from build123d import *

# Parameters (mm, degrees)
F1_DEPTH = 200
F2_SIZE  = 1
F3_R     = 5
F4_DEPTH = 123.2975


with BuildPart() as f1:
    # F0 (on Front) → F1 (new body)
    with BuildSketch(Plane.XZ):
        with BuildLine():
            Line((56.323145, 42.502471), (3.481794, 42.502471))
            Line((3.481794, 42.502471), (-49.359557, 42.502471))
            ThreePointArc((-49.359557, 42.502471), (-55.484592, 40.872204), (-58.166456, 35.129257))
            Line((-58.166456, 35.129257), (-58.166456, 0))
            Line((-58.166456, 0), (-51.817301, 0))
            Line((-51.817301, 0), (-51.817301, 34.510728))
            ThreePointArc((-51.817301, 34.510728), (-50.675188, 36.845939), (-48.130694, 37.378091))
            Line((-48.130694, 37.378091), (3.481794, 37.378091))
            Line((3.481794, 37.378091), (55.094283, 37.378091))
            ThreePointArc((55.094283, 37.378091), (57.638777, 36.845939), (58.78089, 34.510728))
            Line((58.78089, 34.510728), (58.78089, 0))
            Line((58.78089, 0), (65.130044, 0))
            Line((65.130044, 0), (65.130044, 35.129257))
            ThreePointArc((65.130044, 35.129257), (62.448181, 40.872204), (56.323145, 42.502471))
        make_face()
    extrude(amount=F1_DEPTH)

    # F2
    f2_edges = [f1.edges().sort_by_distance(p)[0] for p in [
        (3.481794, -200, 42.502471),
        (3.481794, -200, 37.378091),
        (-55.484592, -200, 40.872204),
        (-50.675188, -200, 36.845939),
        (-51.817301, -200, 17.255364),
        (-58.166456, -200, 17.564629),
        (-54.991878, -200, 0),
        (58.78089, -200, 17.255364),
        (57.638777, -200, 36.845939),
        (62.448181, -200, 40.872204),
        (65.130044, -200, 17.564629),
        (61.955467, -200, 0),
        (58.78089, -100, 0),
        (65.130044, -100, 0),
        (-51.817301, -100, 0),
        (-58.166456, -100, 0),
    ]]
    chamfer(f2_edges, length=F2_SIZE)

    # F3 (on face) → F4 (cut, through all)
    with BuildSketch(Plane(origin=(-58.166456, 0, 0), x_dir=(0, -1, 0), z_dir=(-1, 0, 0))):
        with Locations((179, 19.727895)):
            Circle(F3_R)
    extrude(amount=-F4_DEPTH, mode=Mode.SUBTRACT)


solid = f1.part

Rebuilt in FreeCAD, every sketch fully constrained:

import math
import FreeCAD as App
import Part
import Sketcher
Q = App.Units.Quantity


def edges_at(feature, points):
    """Names of the edges that pass closest to the given points."""
    edges = feature.Shape.Edges
    near = lambda p: min(range(len(edges)), key=lambda i: edges[i].distToShape(Part.Vertex(*p))[0])
    return sorted({f"Edge{near(p) + 1}" for p in points})

doc = App.newDocument("Part")
body = doc.addObject("PartDesign::Body", "Body")

sketch1 = body.newObject("Sketcher::SketchObject", "Sketch")
sketch1.AttachmentSupport = (doc.getObject("XZ_Plane"), [""])
sketch1.MapMode = "FlatFace"
sketch1.addGeometry([
    Part.LineSegment(App.Vector(56.3, 42.5, 0), App.Vector(-49.4, 42.5, 0)),
    Part.ArcOfCircle(Part.Circle(App.Vector(-50.7, 35.1, 0), App.Vector(0, 0, 1), 7.5), math.radians(80), math.radians(180)),
    Part.LineSegment(App.Vector(-58.2, 35.1, 0), App.Vector(-58.2, 0, 0)),
    Part.LineSegment(App.Vector(-58.2, 0, 0), App.Vector(-51.8, 0, 0)),
    Part.LineSegment(App.Vector(-51.8, 0, 0), App.Vector(-51.8, 34.5, 0)),
    Part.ArcOfCircle(Part.Circle(App.Vector(-48.9, 34.5, 0), App.Vector(0, 0, 1), 3), math.radians(76), math.radians(180)),
    Part.LineSegment(App.Vector(-48.1, 37.4, 0), App.Vector(55.1, 37.4, 0)),
    Part.ArcOfCircle(Part.Circle(App.Vector(55.8, 34.5, 0), App.Vector(0, 0, 1), 3), math.radians(0), math.radians(104)),
    Part.LineSegment(App.Vector(58.8, 34.5, 0), App.Vector(58.8, 0, 0)),
    Part.LineSegment(App.Vector(58.8, 0, 0), App.Vector(65.1, 0, 0)),
    Part.LineSegment(App.Vector(65.1, 0, 0), App.Vector(65.1, 35.1, 0)),
    Part.ArcOfCircle(Part.Circle(App.Vector(57.6, 35.1, 0), App.Vector(0, 0, 1), 7.5), math.radians(0), math.radians(100)),
], False)
sketch1.addConstraint([
    Sketcher.Constraint("Coincident", 0, 2, 1, 1),
    Sketcher.Constraint("Tangent", 1, 2, 2, 1),
    Sketcher.Constraint("Coincident", 2, 2, 3, 1),
    Sketcher.Constraint("Coincident", 3, 2, 4, 1),
    Sketcher.Constraint("Tangent", 4, 2, 5, 2),
    Sketcher.Constraint("Coincident", 5, 1, 6, 1),
    Sketcher.Constraint("Coincident", 6, 2, 7, 2),
    Sketcher.Constraint("Tangent", 7, 1, 8, 1),
    Sketcher.Constraint("Coincident", 8, 2, 9, 1),
    Sketcher.Constraint("Coincident", 9, 2, 10, 1),
    Sketcher.Constraint("Tangent", 10, 2, 11, 1),
    Sketcher.Constraint("Coincident", 11, 2, 0, 1),
    Sketcher.Constraint("Horizontal", 0),
    Sketcher.Constraint("Vertical", 2),
    Sketcher.Constraint("Horizontal", 3),
    Sketcher.Constraint("Vertical", 4),
    Sketcher.Constraint("Horizontal", 6),
    Sketcher.Constraint("Vertical", 8),
    Sketcher.Constraint("Horizontal", 9),
    Sketcher.Constraint("Vertical", 10),
    Sketcher.Constraint("Equal", 5, 7),
    Sketcher.Constraint("Equal", 1, 11),
    Sketcher.Constraint("PointOnObject", 2, 2, -1),
    Sketcher.Constraint("PointOnObject", 8, 2, -1),
    Sketcher.Constraint("Horizontal", 5, 3, 7, 3),
    Sketcher.Constraint("Horizontal", 1, 3, 11, 3),
    Sketcher.Constraint("Equal", 3, 9),
    Sketcher.Constraint("Radius", 1, Q("7.48991 mm")),
    Sketcher.Constraint("Radius", 5, Q("2.95839 mm")),
    Sketcher.Constraint("DistanceX", -1, 1, 7, 3, Q("55.8225 mm")),
    Sketcher.Constraint("DistanceX", 3, 2, -1, 1, Q("51.817301 mm")),
    Sketcher.Constraint("DistanceX", 1, 2, 0, 2, Q("8.806899 mm")),
    Sketcher.Constraint("DistanceX", 0, 2, 0, 1, Q("105.682702 mm")),
    Sketcher.Constraint("DistanceX", 6, 1, 6, 2, Q("103.224977 mm")),
    Sketcher.Constraint("DistanceY", 2, 2, 2, 1, Q("35.129257 mm")),
    Sketcher.Constraint("DistanceY", 4, 1, 4, 2, Q("34.510728 mm")),
])
pad1 = body.newObject("PartDesign::Pad", "Pad")
pad1.Profile = sketch1
pad1.Length = 200
doc.recompute()

chamfer = body.newObject("PartDesign::Chamfer", "Chamfer")
chamfer.Base = (pad1, edges_at(pad1, [
    (3.482, -200, 42.502),
    (3.482, -200, 37.378),
    (-55.485, -200, 40.872),
    (-50.675, -200, 36.846),
    (-51.817, -200, 17.255),
    (-58.166, -200, 17.565),
    (-54.992, -200, 0),
    (58.781, -200, 17.255),
    (57.639, -200, 36.846),
    (62.448, -200, 40.872),
    (65.13, -200, 17.565),
    (61.955, -200, 0),
    (58.781, -100, 0),
    (65.13, -100, 0),
    (-51.817, -100, 0),
    (-58.166, -100, 0),
]))
chamfer.Size = 1

sketch2 = body.newObject("Sketcher::SketchObject", "Sketch001")
sketch2.AttachmentSupport = (doc.getObject("YZ_Plane"), [""])
sketch2.MapMode = "FlatFace"
sketch2.AttachmentOffset = App.Placement(App.Vector(0, 0, -58.166456), App.Rotation())
sketch2.addGeometry(Part.Circle(App.Vector(-179, 20, 0), App.Vector(0, 0, 1), 5), False)
sketch2.addConstraint([
    Sketcher.Constraint("Diameter", 0, Q("10 mm")),
    Sketcher.Constraint("DistanceX", 0, 3, -1, 1, Q("179 mm")),
    Sketcher.Constraint("DistanceY", -1, 1, 0, 3, Q("19.727895 mm")),
])
pocket1 = body.newObject("PartDesign::Pocket", "Pocket")
pocket1.Profile = sketch2
pocket1.Type = "ThroughAll"
pocket1.Reversed = True

doc.recompute()
